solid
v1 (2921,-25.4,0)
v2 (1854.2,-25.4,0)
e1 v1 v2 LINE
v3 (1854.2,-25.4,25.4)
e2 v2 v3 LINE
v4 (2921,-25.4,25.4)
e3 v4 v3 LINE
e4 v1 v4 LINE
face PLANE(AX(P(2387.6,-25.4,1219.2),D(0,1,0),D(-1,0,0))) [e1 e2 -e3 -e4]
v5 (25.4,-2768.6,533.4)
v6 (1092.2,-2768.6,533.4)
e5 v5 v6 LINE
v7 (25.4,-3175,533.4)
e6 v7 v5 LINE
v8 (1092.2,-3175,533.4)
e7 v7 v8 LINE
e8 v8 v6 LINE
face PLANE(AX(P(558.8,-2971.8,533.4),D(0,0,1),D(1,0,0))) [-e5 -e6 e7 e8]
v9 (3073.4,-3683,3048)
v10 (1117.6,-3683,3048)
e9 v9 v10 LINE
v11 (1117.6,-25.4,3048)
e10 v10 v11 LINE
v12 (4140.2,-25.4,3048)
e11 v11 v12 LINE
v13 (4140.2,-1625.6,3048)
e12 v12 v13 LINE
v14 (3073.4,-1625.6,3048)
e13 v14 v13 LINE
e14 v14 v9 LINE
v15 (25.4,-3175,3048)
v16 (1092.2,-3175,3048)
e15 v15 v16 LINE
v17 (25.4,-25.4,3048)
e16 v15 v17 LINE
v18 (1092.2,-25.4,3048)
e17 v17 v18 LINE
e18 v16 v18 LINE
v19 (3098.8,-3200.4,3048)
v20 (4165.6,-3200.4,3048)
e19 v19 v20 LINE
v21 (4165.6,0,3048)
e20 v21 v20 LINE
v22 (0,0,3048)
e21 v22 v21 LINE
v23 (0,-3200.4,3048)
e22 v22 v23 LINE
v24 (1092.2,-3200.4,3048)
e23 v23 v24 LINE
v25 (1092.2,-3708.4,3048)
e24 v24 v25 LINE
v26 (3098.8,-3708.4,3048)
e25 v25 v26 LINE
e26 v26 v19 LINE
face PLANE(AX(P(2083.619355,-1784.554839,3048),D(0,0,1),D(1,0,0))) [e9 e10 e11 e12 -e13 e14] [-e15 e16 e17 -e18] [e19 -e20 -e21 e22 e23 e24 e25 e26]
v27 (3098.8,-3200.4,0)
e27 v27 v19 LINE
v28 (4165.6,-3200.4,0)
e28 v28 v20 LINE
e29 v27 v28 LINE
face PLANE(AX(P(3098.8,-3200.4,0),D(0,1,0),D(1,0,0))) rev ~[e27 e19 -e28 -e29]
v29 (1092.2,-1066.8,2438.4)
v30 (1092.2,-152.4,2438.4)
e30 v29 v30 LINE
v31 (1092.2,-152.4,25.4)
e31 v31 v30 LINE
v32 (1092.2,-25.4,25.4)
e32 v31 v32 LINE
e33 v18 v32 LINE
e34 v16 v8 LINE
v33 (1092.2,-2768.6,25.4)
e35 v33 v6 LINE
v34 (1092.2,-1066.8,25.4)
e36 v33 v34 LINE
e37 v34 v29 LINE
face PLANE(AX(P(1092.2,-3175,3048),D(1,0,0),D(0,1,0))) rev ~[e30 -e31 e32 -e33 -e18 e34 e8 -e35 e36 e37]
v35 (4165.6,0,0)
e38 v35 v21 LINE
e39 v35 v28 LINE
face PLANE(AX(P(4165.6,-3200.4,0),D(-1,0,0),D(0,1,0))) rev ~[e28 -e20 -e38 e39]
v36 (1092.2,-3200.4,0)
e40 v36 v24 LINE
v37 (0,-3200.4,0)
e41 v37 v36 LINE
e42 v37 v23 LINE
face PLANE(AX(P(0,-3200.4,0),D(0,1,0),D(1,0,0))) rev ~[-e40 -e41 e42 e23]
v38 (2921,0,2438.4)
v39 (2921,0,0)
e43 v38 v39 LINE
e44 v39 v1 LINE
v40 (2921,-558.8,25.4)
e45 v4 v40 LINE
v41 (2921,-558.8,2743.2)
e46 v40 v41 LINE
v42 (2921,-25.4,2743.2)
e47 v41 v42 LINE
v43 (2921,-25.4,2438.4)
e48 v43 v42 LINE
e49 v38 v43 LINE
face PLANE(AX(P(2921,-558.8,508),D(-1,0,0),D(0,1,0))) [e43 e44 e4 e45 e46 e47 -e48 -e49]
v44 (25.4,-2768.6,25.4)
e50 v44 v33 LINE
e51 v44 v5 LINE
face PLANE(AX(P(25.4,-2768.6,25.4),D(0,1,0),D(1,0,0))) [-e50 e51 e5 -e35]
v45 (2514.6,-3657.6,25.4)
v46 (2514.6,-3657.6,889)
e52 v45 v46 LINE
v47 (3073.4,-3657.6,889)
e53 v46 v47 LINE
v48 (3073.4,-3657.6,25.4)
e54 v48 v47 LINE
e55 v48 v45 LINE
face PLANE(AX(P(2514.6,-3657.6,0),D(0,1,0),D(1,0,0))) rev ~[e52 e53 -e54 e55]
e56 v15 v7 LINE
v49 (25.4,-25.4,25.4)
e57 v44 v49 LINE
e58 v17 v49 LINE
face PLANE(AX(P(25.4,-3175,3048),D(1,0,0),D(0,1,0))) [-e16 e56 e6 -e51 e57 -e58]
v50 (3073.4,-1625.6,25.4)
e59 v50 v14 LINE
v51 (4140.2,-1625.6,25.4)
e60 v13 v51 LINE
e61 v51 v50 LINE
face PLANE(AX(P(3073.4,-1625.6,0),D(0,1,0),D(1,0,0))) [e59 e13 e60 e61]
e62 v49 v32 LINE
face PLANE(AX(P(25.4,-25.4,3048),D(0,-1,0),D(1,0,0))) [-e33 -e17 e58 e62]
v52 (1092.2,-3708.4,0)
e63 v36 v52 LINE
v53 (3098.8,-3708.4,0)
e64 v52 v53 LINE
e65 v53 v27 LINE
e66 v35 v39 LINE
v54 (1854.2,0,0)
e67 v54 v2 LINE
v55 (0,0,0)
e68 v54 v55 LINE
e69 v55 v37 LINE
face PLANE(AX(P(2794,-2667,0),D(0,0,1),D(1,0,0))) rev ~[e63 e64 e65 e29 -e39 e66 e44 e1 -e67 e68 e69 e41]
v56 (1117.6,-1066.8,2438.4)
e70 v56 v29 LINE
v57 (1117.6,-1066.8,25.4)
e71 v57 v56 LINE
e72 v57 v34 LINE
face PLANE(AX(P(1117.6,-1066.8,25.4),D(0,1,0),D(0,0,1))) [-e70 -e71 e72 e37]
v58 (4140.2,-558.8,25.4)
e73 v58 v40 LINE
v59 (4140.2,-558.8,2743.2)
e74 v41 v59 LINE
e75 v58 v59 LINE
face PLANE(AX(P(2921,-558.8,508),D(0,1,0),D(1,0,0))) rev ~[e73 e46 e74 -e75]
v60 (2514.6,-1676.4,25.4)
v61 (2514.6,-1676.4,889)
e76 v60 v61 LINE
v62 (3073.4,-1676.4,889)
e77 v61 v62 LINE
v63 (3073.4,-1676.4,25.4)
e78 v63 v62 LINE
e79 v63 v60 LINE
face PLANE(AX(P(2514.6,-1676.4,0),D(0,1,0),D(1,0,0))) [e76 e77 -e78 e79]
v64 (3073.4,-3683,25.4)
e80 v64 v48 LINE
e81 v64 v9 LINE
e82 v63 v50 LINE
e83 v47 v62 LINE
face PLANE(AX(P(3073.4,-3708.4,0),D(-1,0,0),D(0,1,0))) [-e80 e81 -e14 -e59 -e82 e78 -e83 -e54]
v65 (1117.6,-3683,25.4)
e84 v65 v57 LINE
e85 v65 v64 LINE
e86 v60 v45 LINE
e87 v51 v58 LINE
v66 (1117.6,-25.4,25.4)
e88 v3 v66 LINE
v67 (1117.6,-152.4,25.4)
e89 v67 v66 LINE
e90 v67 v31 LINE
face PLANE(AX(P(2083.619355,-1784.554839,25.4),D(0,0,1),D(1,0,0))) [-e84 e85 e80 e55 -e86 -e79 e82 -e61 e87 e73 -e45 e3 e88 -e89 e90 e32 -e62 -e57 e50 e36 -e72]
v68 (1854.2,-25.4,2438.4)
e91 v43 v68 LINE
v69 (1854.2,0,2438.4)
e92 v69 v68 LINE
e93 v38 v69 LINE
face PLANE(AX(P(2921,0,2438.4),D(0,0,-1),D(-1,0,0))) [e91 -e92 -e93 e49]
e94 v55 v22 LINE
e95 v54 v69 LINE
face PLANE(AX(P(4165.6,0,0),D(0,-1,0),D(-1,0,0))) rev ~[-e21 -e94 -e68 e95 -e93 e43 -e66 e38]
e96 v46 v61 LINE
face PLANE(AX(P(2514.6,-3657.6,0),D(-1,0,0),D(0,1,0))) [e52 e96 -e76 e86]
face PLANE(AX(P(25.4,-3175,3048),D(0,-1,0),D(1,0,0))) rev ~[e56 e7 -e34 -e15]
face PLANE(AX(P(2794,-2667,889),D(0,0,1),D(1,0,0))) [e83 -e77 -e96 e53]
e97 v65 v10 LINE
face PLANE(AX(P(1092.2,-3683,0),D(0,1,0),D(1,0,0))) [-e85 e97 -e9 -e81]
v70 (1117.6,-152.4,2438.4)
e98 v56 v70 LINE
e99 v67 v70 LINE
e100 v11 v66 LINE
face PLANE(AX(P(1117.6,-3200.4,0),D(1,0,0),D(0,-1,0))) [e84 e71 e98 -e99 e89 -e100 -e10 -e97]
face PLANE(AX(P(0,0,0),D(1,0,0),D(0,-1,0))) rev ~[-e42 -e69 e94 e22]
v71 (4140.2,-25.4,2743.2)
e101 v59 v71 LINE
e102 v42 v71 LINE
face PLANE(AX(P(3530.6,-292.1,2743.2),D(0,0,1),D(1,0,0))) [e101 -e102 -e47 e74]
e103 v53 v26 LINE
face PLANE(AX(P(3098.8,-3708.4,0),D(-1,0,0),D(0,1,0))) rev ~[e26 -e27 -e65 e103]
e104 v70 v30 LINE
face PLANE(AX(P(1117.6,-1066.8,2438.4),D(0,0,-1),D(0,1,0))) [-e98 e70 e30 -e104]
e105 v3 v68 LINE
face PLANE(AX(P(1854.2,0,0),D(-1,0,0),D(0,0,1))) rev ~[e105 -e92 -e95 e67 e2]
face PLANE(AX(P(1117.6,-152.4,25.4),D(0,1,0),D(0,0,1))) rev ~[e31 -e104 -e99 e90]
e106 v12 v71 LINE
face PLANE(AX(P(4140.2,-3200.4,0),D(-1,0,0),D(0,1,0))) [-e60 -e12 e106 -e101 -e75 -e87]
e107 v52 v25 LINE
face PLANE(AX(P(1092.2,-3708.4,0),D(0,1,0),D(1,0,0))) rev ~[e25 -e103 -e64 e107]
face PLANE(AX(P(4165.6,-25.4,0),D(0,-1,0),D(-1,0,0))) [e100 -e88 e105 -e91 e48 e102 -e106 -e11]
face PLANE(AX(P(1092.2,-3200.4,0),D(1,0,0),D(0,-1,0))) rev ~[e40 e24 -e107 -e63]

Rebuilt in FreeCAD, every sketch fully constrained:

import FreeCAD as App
import Part
import Sketcher

V = App.Vector
Q = App.Units.Quantity


def faces_at(feature, points):
    """Names of the faces that lie closest to the given points."""
    faces = feature.Shape.Faces
    near = lambda p: min(range(len(faces)), key=lambda i: faces[i].distToShape(Part.Vertex(*p))[0])
    return sorted({f"Face{near(p) + 1}" for p in points})

doc = App.newDocument("Part")
body = doc.addObject("PartDesign::Body", "Body")

# Sketch on XY plane
sketch1 = body.newObject("Sketcher::SketchObject", "Sketch")
sketch1.AttachmentSupport = (doc.getObject("XY_Plane"), [""])
sketch1.MapMode = "FlatFace"
sketch1.addGeometry([
    Part.LineSegment(V(4166, 0, 0), V(0, 0, 0)),  # 0
    Part.LineSegment(V(0, 0, 0), V(0, -3200, 0)),  # 1
    Part.LineSegment(V(0, -3200, 0), V(1092, -3200, 0)),  # 2
    Part.LineSegment(V(1092, -3200, 0), V(1092, -3708, 0)),  # 3
    Part.LineSegment(V(1092, -3708, 0), V(3099, -3708, 0)),  # 4
    Part.LineSegment(V(3099, -3708, 0), V(3099, -3200, 0)),  # 5
    Part.LineSegment(V(3099, -3200, 0), V(4166, -3200, 0)),  # 6
    Part.LineSegment(V(4166, -3200, 0), V(4166, 0, 0)),  # 7
], False)
sketch1.addConstraint([
    Sketcher.Constraint("Coincident", 0, 2, 1, 1),
    Sketcher.Constraint("Coincident", 1, 2, 2, 1),
    Sketcher.Constraint("Coincident", 2, 2, 3, 1),
    Sketcher.Constraint("Coincident", 3, 2, 4, 1),
    Sketcher.Constraint("Coincident", 4, 2, 5, 1),
    Sketcher.Constraint("Coincident", 5, 2, 6, 1),
    Sketcher.Constraint("Coincident", 6, 2, 7, 1),
    Sketcher.Constraint("Coincident", 7, 2, 0, 1),
    Sketcher.Constraint("Horizontal", 0),
    Sketcher.Constraint("Vertical", 1),
    Sketcher.Constraint("Horizontal", 2),
    Sketcher.Constraint("Vertical", 3),
    Sketcher.Constraint("Horizontal", 4),
    Sketcher.Constraint("Vertical", 5),
    Sketcher.Constraint("Horizontal", 6),
    Sketcher.Constraint("Vertical", 7),
    Sketcher.Constraint("Coincident", 0, 2, -1, 1),
    Sketcher.Constraint("Horizontal", 2, 2, 5, 2),
    Sketcher.Constraint("DistanceX", 0, 2, 0, 1, Q("164 in")),
    Sketcher.Constraint("DistanceX", 2, 1, 2, 2, Q("43 in")),
    Sketcher.Constraint("DistanceX", 4, 1, 4, 2, Q("79 in")),
    Sketcher.Constraint("DistanceY", 1, 2, 1, 1, Q("126 in")),
    Sketcher.Constraint("DistanceY", 3, 2, 3, 1, Q("20 in")),
])
pad1 = body.newObject("PartDesign::Pad", "Pad")
pad1.Profile = sketch1
pad1.Length = Q("120 in")
doc.recompute()

thickness = body.newObject("PartDesign::Thickness", "Thickness")
thickness.Base = (pad1, faces_at(pad1, [(2082.8, -1854.2, 3048)]))
thickness.Value = Q("1 in")
thickness.Reversed = True
thickness.Join = "Intersection"

# Sketch on XZ plane
sketch2 = body.newObject("Sketcher::SketchObject", "Sketch001")
sketch2.AttachmentSupport = (doc.getObject("XZ_Plane"), [""])
sketch2.MapMode = "FlatFace"
sketch2.addGeometry([
    Part.LineSegment(V(2921, 2438, 0), V(2921, 0, 0)),
    Part.LineSegment(V(2921, 0, 0), V(1854, 0, 0)),
    Part.LineSegment(V(1854, 0, 0), V(1854, 2438, 0)),
    Part.LineSegment(V(1854, 2438, 0), V(2921, 2438, 0)),
], False)
sketch2.addConstraint([
    Sketcher.Constraint("Coincident", 0, 2, 1, 1),
    Sketcher.Constraint("Coincident", 1, 2, 2, 1),
    Sketcher.Constraint("Coincident", 2, 2, 3, 1),
    Sketcher.Constraint("Coincident", 3, 2, 0, 1),
    Sketcher.Constraint("Vertical", 0),
    Sketcher.Constraint("Horizontal", 1),
    Sketcher.Constraint("Vertical", 2),
    Sketcher.Constraint("Horizontal", 3),
    Sketcher.Constraint("PointOnObject", 0, 2, -1),
    Sketcher.Constraint("DistanceX", 1, 2, 1, 1, Q("42 in")),
    Sketcher.Constraint("DistanceY", 0, 2, 0, 1, Q("96 in")),
    Sketcher.Constraint("DistanceX", -1, 1, 0, 2, Q("115 in")),
])
pocket1 = body.newObject("PartDesign::Pocket", "Pocket")
pocket1.Profile = sketch2
pocket1.Length = Q("1 in")
pocket1.Reversed = True

# Sketch on XY plane
sketch3 = body.newObject("Sketcher::SketchObject", "Sketch002")
sketch3.AttachmentSupport = (doc.getObject("XY_Plane"), [""])
sketch3.MapMode = "FlatFace"
sketch3.addGeometry([
    Part.LineSegment(V(0, 0, 0), V(0, -3200, 0)),
    Part.LineSegment(V(0, -3200, 0), V(1118, -3200, 0)),
    Part.LineSegment(V(1118, -3200, 0), V(1118, 0, 0)),
    Part.LineSegment(V(1118, 0, 0), V(0, 0, 0)),
], False)
sketch3.addConstraint([
    Sketcher.Constraint("Coincident", 0, 2, 1, 1),
    Sketcher.Constraint("Coincident", 1, 2, 2, 1),
    Sketcher.Constraint("Coincident", 2, 2, 3, 1),
    Sketcher.Constraint("Coincident", 3, 2, 0, 1),
    Sketcher.Constraint("Vertical", 0),
    Sketcher.Constraint("Horizontal", 1),
    Sketcher.Constraint("Vertical", 2),
    Sketcher.Constraint("Horizontal", 3),
    Sketcher.Constraint("Coincident", 3, 2, -1, 1),
    Sketcher.Constraint("DistanceX", 1, 1, 1, 2, Q("44 in")),
    Sketcher.Constraint("DistanceY", 0, 2, 0, 1, Q("126 in")),
])
pad2 = body.newObject("PartDesign::Pad", "Pad001")
pad2.Profile = sketch3
pad2.Length = Q("120 in")

# Sketch on XY plane
sketch4 = body.newObject("Sketcher::SketchObject", "Sketch003")
sketch4.AttachmentSupport = (doc.getObject("XY_Plane"), [""])
sketch4.MapMode = "FlatFace"
sketch4.addGeometry([
    Part.LineSegment(V(3073, -1626, 0), V(3073, -3200, 0)),
    Part.LineSegment(V(3073, -3200, 0), V(4166, -3200, 0)),
    Part.LineSegment(V(4166, -3200, 0), V(4166, -1626, 0)),
    Part.LineSegment(V(4166, -1626, 0), V(3073, -1626, 0)),
], False)
sketch4.addConstraint([
    Sketcher.Constraint("Coincident", 0, 2, 1, 1),
    Sketcher.Constraint("Coincident", 1, 2, 2, 1),
    Sketcher.Constraint("Coincident", 2, 2, 3, 1),
    Sketcher.Constraint("Coincident", 3, 2, 0, 1),
    Sketcher.Constraint("Vertical", 0),
    Sketcher.Constraint("Horizontal", 1),
    Sketcher.Constraint("Vertical", 2),
    Sketcher.Constraint("Horizontal", 3),
    Sketcher.Constraint("DistanceX", 1, 1, 1, 2, Q("43 in")),
    Sketcher.Constraint("DistanceY", 0, 2, 0, 1, Q("62 in")),
    Sketcher.Constraint("DistanceX", -1, 1, 0, 2, Q("121 in")),
    Sketcher.Constraint("DistanceY", 0, 2, -1, 1, Q("126 in")),
])
pad3 = body.newObject("PartDesign::Pad", "Pad002")
pad3.Profile = sketch4
pad3.Length = Q("120 in")

# Sketch on XY plane
sketch5 = body.newObject("Sketcher::SketchObject", "Sketch004")
sketch5.AttachmentSupport = (doc.getObject("XY_Plane"), [""])
sketch5.MapMode = "FlatFace"
sketch5.addGeometry([
    Part.LineSegment(V(2515, -1676, 0), V(2515, -3658, 0)),
    Part.LineSegment(V(2515, -3658, 0), V(3073, -3658, 0)),
    Part.LineSegment(V(3073, -3658, 0), V(3073, -1676, 0)),
    Part.LineSegment(V(3073, -1676, 0), V(2515, -1676, 0)),
], False)
sketch5.addConstraint([
    Sketcher.Constraint("Coincident", 0, 2, 1, 1),
    Sketcher.Constraint("Coincident", 1, 2, 2, 1),
    Sketcher.Constraint("Coincident", 2, 2, 3, 1),
    Sketcher.Constraint("Coincident", 3, 2, 0, 1),
    Sketcher.Constraint("Vertical", 0),
    Sketcher.Constraint("Horizontal", 1),
    Sketcher.Constraint("Vertical", 2),
    Sketcher.Constraint("Horizontal", 3),
    Sketcher.Constraint("DistanceX", 1, 1, 1, 2, Q("22 in")),
    Sketcher.Constraint("DistanceY", 0, 2, 0, 1, Q("78 in")),
    Sketcher.Constraint("DistanceX", -1, 1, 0, 2, Q("99 in")),
    Sketcher.Constraint("DistanceY", 0, 2, -1, 1, Q("144 in")),
])
pad4 = body.newObject("PartDesign::Pad", "Pad003")
pad4.Profile = sketch5
pad4.Length = Q("35 in")

# Sketch on XY plane
sketch6 = body.newObject("Sketcher::SketchObject", "Sketch005")
sketch6.AttachmentSupport = (doc.getObject("XY_Plane"), [""])
sketch6.MapMode = "FlatFace"
sketch6.addGeometry([
    Part.LineSegment(V(2921, 0, 0), V(2921, -559, 0)),
    Part.LineSegment(V(2921, -559, 0), V(4166, -559, 0)),
    Part.LineSegment(V(4166, -559, 0), V(4166, 0, 0)),
    Part.LineSegment(V(4166, 0, 0), V(2921, 0, 0)),
], False)
sketch6.addConstraint([
    Sketcher.Constraint("Coincident", 0, 2, 1, 1),
    Sketcher.Constraint("Coincident", 1, 2, 2, 1),
    Sketcher.Constraint("Coincident", 2, 2, 3, 1),
    Sketcher.Constraint("Coincident", 3, 2, 0, 1),
    Sketcher.Constraint("Vertical", 0),
    Sketcher.Constraint("Horizontal", 1),
    Sketcher.Constraint("Vertical", 2),
    Sketcher.Constraint("Horizontal", 3),
    Sketcher.Constraint("PointOnObject", 2, 2, -1),
    Sketcher.Constraint("DistanceX", 1, 1, 1, 2, Q("49 in")),
    Sketcher.Constraint("DistanceY", 0, 2, 0, 1, Q("22 in")),
    Sketcher.Constraint("DistanceX", -1, 1, 0, 2, Q("115 in")),
])
pad5 = body.newObject("PartDesign::Pad", "Pad004")
pad5.Profile = sketch6
pad5.Length = Q("20 in")

# Sketch on XY plane
sketch7 = body.newObject("Sketcher::SketchObject", "Sketch006")
sketch7.AttachmentSupport = (doc.getObject("XY_Plane"), [""])
sketch7.MapMode = "FlatFace"
sketch7.AttachmentOffset = App.Placement(V(0, 0, 20 * 25.4), App.Rotation())
sketch7.addGeometry([
    Part.LineSegment(V(2921, -25, 0), V(2921, -559, 0)),
    Part.LineSegment(V(2921, -559, 0), V(4140, -559, 0)),
    Part.LineSegment(V(4140, -559, 0), V(4140, -25, 0)),
    Part.LineSegment(V(4140, -25, 0), V(2921, -25, 0)),
], False)
sketch7.addConstraint([
    Sketcher.Constraint("Coincident", 0, 2, 1, 1),
    Sketcher.Constraint("Coincident", 1, 2, 2, 1),
    Sketcher.Constraint("Coincident", 2, 2, 3, 1),
    Sketcher.Constraint("Coincident", 3, 2, 0, 1),
    Sketcher.Constraint("Vertical", 0),
    Sketcher.Constraint("Horizontal", 1),
    Sketcher.Constraint("Vertical", 2),
    Sketcher.Constraint("Horizontal", 3),
    Sketcher.Constraint("DistanceX", 1, 1, 1, 2, Q("48 in")),
    Sketcher.Constraint("DistanceY", 0, 2, 0, 1, Q("21 in")),
    Sketcher.Constraint("DistanceX", -1, 1, 0, 2, Q("115 in")),
    Sketcher.Constraint("DistanceY", 0, 2, -1, 1, Q("22 in")),
])
pad6 = body.newObject("PartDesign::Pad", "Pad005")
pad6.Profile = sketch7
pad6.Length = Q("88 in")

# Sketch on XY plane
sketch8 = body.newObject("Sketcher::SketchObject", "Sketch007")
sketch8.AttachmentSupport = (doc.getObject("XY_Plane"), [""])
sketch8.MapMode = "FlatFace"
sketch8.AttachmentOffset = App.Placement(V(0, 0, 120 * 25.4), App.Rotation())
sketch8.addGeometry([
    Part.LineSegment(V(25, -25, 0), V(25, -3175, 0)),
    Part.LineSegment(V(25, -3175, 0), V(1092, -3175, 0)),
    Part.LineSegment(V(1092, -3175, 0), V(1092, -25, 0)),
    Part.LineSegment(V(1092, -25, 0), V(25, -25, 0)),
], False)
sketch8.addConstraint([
    Sketcher.Constraint("Coincident", 0, 2, 1, 1),
    Sketcher.Constraint("Coincident", 1, 2, 2, 1),
    Sketcher.Constraint("Coincident", 2, 2, 3, 1),
    Sketcher.Constraint("Coincident", 3, 2, 0, 1),
    Sketcher.Constraint("Vertical", 0),
    Sketcher.Constraint("Horizontal", 1),
    Sketcher.Constraint("Vertical", 2),
    Sketcher.Constraint("Horizontal", 3),
    Sketcher.Constraint("DistanceX", 1, 1, 1, 2, Q("42 in")),
    Sketcher.Constraint("DistanceY", 0, 2, 0, 1, Q("124 in")),
    Sketcher.Constraint("DistanceX", -1, 1, 0, 2, Q("1 in")),
    Sketcher.Constraint("DistanceY", 0, 2, -1, 1, Q("125 in")),
])
pocket2 = body.newObject("PartDesign::Pocket", "Pocket001")
pocket2.Profile = sketch8
pocket2.Length = Q("119 in")

# Sketch on YZ plane
sketch9 = body.newObject("Sketcher::SketchObject", "Sketch008")
sketch9.AttachmentSupport = (doc.getObject("YZ_Plane"), [""])
sketch9.MapMode = "FlatFace"
sketch9.AttachmentOffset = App.Placement(V(0, 0, 44 * 25.4), App.Rotation())
sketch9.addGeometry([
    Part.LineSegment(V(-1067, 2438, 0), V(-1067, 25, 0)),
    Part.LineSegment(V(-1067, 25, 0), V(-152, 25, 0)),
    Part.LineSegment(V(-152, 25, 0), V(-152, 2438, 0)),
    Part.LineSegment(V(-152, 2438, 0), V(-1067, 2438, 0)),
], False)
sketch9.addConstraint([
    Sketcher.Constraint("Coincident", 0, 2, 1, 1),
    Sketcher.Constraint("Coincident", 1, 2, 2, 1),
    Sketcher.Constraint("Coincident", 2, 2, 3, 1),
    Sketcher.Constraint("Coincident", 3, 2, 0, 1),
    Sketcher.Constraint("Vertical", 0),
    Sketcher.Constraint("Horizontal", 1),
    Sketcher.Constraint("Vertical", 2),
    Sketcher.Constraint("Horizontal", 3),
    Sketcher.Constraint("DistanceX", 1, 1, 1, 2, Q("36 in")),
    Sketcher.Constraint("DistanceY", 0, 2, 0, 1, Q("95 in")),
    Sketcher.Constraint("DistanceX", 0, 2, -1, 1, Q("42 in")),
    Sketcher.Constraint("DistanceY", -1, 1, 0, 2, Q("1 in")),
])
pocket3 = body.newObject("PartDesign::Pocket", "Pocket002")
pocket3.Profile = sketch9
pocket3.Length = Q("1 in")

# Sketch on XY plane
sketch10 = body.newObject("Sketcher::SketchObject", "Sketch009")
sketch10.AttachmentSupport = (doc.getObject("XY_Plane"), [""])
sketch10.MapMode = "FlatFace"
sketch10.AttachmentOffset = App.Placement(V(0, 0, 1 * 25.4), App.Rotation())
sketch10.addGeometry([
    Part.LineSegment(V(25, -2769, 0), V(25, -3175, 0)),
    Part.LineSegment(V(25, -3175, 0), V(1092, -3175, 0)),
    Part.LineSegment(V(1092, -3175, 0), V(1092, -2769, 0)),
    Part.LineSegment(V(1092, -2769, 0), V(25, -2769, 0)),
], False)
sketch10.addConstraint([
    Sketcher.Constraint("Coincident", 0, 2, 1, 1),
    Sketcher.Constraint("Coincident", 1, 2, 2, 1),
    Sketcher.Constraint("Coincident", 2, 2, 3, 1),
    Sketcher.Constraint("Coincident", 3, 2, 0, 1),
    Sketcher.Constraint("Vertical", 0),
    Sketcher.Constraint("Horizontal", 1),
    Sketcher.Constraint("Vertical", 2),
    Sketcher.Constraint("Horizontal", 3),
    Sketcher.Constraint("DistanceX", 1, 1, 1, 2, Q("42 in")),
    Sketcher.Constraint("DistanceY", 0, 2, 0, 1, Q("16 in")),
    Sketcher.Constraint("DistanceX", -1, 1, 0, 2, Q("1 in")),
    Sketcher.Constraint("DistanceY", 0, 2, -1, 1, Q("125 in")),
])
pad7 = body.newObject("PartDesign::Pad", "Pad006")
pad7.Profile = sketch10
pad7.Length = Q("20 in")

doc.recompute()
